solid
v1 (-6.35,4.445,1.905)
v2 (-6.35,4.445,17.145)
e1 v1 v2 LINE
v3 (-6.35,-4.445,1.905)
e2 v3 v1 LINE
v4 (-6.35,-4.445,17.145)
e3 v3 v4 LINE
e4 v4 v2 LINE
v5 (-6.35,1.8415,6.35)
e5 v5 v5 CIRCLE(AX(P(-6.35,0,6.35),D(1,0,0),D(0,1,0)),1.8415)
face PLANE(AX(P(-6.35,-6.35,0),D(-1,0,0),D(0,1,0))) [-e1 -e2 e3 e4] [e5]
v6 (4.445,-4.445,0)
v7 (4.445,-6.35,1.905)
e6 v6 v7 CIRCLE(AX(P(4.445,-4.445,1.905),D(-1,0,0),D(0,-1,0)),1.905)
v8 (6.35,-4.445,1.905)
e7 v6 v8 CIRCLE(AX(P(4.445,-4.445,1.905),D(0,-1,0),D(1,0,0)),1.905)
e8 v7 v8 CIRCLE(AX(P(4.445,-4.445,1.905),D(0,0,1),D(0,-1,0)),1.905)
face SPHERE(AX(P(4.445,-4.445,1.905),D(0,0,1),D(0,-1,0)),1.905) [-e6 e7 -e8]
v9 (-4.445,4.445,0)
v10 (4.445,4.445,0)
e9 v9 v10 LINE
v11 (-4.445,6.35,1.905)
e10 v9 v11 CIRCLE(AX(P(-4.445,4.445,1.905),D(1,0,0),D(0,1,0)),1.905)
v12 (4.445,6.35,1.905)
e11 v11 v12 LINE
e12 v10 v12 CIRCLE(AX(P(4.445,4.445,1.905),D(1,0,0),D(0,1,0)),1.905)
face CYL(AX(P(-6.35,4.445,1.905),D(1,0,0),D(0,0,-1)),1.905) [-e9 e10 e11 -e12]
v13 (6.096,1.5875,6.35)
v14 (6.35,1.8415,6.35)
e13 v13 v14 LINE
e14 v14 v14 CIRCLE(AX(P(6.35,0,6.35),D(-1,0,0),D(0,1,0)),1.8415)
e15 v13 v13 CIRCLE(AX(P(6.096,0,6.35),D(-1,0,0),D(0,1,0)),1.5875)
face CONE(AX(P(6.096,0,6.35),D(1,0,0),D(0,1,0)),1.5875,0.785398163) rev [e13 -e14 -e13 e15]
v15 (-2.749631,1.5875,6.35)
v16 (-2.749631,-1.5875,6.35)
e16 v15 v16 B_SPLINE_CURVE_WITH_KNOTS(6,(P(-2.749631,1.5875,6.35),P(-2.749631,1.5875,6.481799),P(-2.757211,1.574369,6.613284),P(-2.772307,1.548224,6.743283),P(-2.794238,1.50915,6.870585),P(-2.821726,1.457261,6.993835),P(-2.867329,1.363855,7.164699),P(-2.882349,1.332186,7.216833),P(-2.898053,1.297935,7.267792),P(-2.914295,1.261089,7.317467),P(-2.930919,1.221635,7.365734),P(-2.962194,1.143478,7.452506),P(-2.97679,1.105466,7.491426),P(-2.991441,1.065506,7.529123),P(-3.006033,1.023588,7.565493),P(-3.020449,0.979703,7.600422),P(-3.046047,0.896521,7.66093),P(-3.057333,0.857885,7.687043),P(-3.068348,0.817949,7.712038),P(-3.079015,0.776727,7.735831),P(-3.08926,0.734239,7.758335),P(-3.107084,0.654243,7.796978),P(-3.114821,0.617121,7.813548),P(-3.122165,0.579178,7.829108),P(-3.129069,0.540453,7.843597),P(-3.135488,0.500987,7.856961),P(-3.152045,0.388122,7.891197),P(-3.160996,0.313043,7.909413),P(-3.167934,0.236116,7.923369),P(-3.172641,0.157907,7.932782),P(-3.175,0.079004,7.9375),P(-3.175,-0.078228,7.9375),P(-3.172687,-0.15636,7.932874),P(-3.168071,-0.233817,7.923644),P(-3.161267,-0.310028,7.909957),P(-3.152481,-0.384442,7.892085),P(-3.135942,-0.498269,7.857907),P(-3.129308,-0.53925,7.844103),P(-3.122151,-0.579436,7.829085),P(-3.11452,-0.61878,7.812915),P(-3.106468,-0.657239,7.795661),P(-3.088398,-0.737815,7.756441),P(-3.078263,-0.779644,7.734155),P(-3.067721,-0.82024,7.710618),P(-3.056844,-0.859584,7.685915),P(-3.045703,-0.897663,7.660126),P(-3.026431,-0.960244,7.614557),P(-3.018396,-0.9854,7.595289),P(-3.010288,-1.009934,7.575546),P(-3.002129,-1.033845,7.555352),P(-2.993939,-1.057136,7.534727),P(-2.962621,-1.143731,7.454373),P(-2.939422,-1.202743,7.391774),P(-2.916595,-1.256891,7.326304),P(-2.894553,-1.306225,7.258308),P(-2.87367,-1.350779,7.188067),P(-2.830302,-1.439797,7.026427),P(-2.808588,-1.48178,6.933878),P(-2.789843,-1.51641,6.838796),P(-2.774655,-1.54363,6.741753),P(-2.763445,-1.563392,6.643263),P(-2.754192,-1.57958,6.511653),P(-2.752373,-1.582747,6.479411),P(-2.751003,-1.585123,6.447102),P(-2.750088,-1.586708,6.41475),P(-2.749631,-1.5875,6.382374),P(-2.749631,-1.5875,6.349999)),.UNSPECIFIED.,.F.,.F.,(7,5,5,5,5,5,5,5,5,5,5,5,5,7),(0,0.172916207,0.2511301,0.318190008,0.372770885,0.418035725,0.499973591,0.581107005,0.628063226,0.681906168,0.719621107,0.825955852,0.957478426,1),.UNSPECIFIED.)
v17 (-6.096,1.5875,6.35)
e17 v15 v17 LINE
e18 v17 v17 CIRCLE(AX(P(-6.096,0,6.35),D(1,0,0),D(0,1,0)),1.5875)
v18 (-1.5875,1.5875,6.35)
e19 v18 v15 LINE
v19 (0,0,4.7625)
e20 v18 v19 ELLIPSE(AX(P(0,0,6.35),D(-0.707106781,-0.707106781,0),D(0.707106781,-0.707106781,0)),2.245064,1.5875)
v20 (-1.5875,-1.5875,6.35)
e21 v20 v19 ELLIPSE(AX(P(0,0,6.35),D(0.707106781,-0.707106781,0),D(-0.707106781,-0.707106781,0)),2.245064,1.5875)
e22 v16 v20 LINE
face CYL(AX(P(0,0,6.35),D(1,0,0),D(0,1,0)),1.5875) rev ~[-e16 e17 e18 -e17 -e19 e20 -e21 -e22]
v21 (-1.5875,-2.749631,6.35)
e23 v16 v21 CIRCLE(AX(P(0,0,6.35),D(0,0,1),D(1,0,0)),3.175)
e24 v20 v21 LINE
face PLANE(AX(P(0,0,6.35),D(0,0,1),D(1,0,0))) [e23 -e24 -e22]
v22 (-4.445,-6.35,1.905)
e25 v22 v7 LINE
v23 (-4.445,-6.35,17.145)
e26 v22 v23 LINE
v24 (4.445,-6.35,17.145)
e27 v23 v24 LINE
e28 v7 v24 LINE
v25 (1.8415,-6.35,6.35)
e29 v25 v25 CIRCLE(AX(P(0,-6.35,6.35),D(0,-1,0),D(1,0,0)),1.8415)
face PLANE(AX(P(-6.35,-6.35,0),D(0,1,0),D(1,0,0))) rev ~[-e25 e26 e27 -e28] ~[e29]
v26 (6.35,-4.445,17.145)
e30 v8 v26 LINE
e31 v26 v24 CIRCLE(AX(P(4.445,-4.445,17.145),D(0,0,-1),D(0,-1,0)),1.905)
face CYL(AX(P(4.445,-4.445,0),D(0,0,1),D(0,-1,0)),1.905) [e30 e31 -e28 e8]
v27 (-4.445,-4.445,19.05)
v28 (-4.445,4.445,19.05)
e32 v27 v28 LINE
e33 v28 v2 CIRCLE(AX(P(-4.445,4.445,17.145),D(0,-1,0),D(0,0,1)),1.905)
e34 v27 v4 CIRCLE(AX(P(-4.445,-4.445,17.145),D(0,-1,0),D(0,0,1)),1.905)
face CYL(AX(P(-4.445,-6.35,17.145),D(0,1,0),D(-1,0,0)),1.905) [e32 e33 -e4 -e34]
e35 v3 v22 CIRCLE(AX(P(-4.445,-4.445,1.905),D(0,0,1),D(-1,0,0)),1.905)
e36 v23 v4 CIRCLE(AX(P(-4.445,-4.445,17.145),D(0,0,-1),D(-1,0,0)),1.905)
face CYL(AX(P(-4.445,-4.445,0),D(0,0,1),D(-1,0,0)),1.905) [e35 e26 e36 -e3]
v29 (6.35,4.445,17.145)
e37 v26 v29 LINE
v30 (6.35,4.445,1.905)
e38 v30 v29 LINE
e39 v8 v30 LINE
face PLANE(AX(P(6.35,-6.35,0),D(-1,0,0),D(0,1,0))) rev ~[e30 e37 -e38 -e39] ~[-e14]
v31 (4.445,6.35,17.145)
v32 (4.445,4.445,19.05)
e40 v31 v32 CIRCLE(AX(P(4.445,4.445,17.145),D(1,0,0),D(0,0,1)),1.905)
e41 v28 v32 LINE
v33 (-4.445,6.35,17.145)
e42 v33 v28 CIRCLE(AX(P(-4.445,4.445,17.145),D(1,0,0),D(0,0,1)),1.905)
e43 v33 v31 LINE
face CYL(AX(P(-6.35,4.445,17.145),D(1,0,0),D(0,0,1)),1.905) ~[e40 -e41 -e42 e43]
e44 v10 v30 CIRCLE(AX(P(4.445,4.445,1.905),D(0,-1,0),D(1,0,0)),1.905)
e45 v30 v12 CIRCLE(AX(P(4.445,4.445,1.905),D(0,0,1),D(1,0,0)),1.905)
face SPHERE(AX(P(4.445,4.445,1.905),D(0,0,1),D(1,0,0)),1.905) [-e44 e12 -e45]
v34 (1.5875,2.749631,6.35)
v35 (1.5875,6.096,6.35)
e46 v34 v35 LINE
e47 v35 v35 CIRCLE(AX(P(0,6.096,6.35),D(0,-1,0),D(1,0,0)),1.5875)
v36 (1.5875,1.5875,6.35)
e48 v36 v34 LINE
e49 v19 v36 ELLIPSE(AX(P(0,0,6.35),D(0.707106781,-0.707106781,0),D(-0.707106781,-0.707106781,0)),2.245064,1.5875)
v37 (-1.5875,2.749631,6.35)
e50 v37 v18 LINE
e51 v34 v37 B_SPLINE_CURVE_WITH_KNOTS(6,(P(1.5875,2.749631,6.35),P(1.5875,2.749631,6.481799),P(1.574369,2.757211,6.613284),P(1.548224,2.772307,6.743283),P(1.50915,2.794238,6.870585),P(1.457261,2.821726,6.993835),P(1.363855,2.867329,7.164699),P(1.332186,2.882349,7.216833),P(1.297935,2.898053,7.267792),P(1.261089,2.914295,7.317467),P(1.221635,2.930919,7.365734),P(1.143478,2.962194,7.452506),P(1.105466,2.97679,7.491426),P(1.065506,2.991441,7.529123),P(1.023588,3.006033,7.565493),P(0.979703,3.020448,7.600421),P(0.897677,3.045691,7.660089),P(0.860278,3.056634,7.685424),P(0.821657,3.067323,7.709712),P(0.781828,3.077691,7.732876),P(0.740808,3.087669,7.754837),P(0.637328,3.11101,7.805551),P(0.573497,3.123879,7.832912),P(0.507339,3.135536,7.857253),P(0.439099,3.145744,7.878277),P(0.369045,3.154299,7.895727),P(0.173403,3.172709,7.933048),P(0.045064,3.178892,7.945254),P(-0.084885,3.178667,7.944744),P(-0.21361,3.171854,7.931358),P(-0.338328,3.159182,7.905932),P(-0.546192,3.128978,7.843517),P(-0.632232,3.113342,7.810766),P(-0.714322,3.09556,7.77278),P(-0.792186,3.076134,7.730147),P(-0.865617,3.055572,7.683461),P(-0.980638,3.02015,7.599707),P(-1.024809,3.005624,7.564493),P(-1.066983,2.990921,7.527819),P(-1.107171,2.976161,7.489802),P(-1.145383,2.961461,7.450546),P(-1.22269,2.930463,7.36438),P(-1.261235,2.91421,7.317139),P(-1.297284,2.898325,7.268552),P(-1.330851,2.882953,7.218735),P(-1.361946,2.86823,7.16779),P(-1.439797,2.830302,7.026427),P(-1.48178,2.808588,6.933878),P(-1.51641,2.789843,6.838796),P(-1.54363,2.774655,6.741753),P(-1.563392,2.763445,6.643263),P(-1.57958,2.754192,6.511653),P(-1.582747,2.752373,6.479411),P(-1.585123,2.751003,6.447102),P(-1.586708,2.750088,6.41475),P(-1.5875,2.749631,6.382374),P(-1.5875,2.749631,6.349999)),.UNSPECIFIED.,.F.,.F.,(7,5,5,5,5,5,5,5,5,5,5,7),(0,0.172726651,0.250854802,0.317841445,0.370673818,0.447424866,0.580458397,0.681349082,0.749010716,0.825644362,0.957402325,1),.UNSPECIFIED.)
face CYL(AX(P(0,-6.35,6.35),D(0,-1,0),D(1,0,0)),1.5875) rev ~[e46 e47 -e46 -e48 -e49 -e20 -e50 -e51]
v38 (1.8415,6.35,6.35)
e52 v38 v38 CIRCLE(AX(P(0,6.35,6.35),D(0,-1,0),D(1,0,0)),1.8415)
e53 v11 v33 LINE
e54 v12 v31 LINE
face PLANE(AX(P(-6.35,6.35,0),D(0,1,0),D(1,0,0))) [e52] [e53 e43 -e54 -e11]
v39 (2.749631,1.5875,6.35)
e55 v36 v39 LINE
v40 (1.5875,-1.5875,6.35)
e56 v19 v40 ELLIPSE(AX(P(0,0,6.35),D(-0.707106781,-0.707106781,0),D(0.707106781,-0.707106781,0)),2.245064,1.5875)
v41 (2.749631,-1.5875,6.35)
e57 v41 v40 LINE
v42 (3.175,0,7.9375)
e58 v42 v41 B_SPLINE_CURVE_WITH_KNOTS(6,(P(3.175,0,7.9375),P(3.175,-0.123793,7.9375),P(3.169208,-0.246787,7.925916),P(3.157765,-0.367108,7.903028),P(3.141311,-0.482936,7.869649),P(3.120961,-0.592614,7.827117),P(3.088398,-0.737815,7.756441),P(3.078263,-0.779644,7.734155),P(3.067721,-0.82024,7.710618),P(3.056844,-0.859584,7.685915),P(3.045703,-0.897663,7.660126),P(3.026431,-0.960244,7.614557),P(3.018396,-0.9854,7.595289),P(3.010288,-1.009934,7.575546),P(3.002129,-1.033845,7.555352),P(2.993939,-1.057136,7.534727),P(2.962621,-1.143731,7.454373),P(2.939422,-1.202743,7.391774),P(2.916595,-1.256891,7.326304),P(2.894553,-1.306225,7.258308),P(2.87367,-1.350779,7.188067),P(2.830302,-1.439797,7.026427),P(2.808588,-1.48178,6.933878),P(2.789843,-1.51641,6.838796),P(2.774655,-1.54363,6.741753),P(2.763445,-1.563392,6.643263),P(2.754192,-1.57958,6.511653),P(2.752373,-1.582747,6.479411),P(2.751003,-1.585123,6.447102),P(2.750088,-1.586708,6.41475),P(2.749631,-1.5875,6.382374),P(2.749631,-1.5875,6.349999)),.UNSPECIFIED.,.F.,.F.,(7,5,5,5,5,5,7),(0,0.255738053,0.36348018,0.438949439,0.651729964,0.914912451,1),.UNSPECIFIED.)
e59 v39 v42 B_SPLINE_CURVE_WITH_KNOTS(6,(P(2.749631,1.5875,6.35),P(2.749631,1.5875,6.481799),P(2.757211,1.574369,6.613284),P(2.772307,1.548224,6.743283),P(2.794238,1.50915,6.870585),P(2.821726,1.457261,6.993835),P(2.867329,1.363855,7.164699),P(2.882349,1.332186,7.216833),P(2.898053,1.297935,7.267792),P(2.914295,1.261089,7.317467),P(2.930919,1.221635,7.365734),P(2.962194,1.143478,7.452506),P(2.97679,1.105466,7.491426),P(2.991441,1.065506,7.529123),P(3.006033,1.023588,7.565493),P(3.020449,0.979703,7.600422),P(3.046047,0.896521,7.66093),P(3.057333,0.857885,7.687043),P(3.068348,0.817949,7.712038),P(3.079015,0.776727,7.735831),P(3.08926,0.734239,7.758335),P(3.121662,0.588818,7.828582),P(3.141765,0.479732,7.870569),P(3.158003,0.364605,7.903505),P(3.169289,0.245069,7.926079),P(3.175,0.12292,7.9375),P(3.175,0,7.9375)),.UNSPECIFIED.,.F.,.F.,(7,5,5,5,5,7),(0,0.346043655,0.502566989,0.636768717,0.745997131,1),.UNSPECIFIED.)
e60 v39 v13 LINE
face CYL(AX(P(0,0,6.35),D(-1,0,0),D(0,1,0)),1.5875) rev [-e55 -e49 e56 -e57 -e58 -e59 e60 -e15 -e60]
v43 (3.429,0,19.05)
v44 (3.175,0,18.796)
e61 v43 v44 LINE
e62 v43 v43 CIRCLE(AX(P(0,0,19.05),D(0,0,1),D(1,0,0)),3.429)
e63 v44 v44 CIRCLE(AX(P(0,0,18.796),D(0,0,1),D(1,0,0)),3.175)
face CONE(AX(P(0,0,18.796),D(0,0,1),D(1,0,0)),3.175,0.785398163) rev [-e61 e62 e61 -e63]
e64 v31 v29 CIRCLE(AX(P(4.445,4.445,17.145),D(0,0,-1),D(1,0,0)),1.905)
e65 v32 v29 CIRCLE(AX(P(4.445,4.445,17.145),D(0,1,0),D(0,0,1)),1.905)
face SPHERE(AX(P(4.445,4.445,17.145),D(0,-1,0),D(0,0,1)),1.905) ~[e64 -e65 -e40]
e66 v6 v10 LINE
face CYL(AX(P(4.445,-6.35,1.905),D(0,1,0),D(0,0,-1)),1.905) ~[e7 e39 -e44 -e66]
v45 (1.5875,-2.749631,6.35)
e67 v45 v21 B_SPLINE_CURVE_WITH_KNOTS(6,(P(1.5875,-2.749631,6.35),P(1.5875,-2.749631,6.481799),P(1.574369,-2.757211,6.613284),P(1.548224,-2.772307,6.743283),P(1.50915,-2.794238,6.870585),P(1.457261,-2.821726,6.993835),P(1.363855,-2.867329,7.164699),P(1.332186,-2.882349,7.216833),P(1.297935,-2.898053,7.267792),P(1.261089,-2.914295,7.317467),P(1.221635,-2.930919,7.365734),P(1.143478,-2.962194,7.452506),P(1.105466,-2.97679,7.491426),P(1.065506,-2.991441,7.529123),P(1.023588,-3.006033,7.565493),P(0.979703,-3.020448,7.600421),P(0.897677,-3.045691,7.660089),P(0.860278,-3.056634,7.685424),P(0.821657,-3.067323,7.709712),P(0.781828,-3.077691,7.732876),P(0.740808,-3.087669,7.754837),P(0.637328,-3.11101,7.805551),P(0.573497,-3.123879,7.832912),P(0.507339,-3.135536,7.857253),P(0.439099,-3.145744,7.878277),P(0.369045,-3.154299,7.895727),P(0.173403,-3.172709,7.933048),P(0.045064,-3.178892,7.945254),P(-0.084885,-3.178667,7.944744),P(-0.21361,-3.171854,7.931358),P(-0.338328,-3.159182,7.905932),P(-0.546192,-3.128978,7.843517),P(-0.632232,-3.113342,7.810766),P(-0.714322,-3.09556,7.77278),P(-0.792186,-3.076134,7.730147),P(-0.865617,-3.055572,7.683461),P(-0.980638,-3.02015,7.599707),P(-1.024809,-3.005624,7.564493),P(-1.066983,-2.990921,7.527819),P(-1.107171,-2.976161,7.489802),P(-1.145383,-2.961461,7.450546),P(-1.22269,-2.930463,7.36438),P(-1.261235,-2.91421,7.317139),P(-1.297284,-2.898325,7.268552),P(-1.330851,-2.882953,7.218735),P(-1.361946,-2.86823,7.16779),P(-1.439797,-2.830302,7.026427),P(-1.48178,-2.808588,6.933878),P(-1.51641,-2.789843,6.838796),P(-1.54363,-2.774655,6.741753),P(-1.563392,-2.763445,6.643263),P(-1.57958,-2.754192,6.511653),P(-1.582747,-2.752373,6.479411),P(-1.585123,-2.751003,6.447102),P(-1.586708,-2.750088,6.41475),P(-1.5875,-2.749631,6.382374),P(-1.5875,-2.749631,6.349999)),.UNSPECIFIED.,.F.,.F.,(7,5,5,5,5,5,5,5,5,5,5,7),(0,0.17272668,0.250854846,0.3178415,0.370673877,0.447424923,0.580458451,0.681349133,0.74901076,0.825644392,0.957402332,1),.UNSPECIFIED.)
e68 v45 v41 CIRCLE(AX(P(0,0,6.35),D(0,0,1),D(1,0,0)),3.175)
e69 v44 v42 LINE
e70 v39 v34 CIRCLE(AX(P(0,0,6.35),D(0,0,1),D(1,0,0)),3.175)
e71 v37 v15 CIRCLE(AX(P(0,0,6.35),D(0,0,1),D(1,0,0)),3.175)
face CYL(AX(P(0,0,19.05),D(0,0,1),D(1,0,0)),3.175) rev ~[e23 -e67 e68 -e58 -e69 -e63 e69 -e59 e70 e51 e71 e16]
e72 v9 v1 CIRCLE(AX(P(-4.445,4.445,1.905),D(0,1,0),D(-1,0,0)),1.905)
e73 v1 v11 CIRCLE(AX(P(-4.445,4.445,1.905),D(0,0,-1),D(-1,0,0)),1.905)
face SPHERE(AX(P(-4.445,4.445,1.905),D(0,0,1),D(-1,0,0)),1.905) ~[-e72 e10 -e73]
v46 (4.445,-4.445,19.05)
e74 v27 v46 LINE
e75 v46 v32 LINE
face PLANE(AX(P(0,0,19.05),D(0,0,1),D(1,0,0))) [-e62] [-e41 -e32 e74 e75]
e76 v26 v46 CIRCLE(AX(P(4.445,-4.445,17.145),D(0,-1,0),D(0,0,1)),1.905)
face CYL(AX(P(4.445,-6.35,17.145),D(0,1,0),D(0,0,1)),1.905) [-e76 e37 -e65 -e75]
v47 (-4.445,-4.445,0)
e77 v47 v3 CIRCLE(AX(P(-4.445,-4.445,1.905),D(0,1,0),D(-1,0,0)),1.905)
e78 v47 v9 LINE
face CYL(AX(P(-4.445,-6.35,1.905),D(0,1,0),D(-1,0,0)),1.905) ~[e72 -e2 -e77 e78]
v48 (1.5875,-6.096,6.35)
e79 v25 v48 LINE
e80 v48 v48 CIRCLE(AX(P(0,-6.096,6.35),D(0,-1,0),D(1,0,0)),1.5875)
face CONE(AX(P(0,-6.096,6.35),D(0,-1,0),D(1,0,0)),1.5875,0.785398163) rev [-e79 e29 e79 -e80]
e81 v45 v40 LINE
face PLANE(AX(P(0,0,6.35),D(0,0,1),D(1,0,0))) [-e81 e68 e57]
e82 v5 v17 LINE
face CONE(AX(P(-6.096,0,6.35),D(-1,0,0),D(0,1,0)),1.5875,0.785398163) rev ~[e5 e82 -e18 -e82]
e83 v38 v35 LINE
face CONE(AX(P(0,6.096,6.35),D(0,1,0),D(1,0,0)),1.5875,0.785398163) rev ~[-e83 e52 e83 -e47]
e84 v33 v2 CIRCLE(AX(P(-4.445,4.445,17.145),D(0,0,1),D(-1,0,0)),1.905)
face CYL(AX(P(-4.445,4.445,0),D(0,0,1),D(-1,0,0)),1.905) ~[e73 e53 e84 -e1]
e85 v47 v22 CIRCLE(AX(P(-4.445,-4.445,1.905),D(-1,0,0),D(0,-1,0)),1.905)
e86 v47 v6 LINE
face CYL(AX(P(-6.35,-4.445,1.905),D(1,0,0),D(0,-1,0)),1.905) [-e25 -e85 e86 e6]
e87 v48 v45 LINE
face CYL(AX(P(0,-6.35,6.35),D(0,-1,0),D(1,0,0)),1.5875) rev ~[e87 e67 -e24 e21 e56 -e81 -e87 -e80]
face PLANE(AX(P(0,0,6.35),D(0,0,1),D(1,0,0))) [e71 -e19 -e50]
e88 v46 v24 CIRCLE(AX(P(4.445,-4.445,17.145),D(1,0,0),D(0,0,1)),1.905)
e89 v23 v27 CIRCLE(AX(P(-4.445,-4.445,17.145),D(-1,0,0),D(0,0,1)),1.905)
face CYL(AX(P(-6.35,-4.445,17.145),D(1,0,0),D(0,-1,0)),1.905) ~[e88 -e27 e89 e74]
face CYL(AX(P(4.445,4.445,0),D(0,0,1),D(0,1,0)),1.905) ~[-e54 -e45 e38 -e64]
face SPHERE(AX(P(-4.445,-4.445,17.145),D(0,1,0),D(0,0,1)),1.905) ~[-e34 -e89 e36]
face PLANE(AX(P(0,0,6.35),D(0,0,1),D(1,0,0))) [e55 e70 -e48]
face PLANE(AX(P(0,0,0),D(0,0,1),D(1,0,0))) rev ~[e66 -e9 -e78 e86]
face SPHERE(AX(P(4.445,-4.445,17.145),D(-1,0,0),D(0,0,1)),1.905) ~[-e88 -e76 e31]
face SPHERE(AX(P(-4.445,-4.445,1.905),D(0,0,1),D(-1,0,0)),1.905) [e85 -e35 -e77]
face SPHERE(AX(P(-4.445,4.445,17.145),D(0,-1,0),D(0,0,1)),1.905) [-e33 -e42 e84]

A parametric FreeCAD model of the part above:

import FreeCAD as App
import Part
import Sketcher
from FreeCAD import Vector
Q = App.Units.Quantity


def edges_at(feature, points):
    """Names of the edges that pass closest to the given points."""
    edges = feature.Shape.Edges
    near = lambda p: min(range(len(edges)), key=lambda i: edges[i].distToShape(Part.Vertex(*p))[0])
    return sorted({f"Edge{near(p) + 1}" for p in points})


def add_polygon(sketch, points):
    """Adds a closed chain of lines whose ends are joined by coincident constraints."""
    first, n = sketch.GeometryCount, len(points)
    for a, b in zip(points, points[1:] + points[:1]):
        sketch.addGeometry(Part.LineSegment(App.Vector(*a, 0), App.Vector(*b, 0)), False)
    for i in range(n):
        sketch.addConstraint(Sketcher.Constraint("Coincident", first + i, 2, first + (i + 1) % n, 1))

doc = App.newDocument("Part")
body = doc.addObject("PartDesign::Body", "Body")

# Sketch on XY plane
sketch1 = body.newObject("Sketcher::SketchObject", "Sketch")
sketch1.AttachmentSupport = (doc.getObject("XY_Plane"), [""])
sketch1.MapMode = "FlatFace"
add_polygon(sketch1, [(-6, 6), (-6, -6), (6, -6), (6, 6)])  # lines 0-3
sketch1.addConstraint(Sketcher.Constraint("Vertical", 0))
sketch1.addConstraint(Sketcher.Constraint("Horizontal", 1))
sketch1.addConstraint(Sketcher.Constraint("Vertical", 2))
sketch1.addConstraint(Sketcher.Constraint("Horizontal", 3))
sketch1.addConstraint(Sketcher.Constraint("Symmetric", 0, 2, 2, 2, -1, 1))
sketch1.addConstraint(Sketcher.Constraint("Equal", 3, 0))
sketch1.addConstraint(Sketcher.Constraint("DistanceX", 1, 1, 1, 2, Q("0.5 in")))
pad1 = body.newObject("PartDesign::Pad", "Pad")
pad1.Profile = sketch1
pad1.Length = Q("0.75 in")

# Sketch on XZ plane
sketch2 = body.newObject("Sketcher::SketchObject", "Sketch001")
sketch2.AttachmentSupport = (doc.getObject("XZ_Plane"), [""])
sketch2.MapMode = "FlatFace"
sketch2.AttachmentOffset = App.Placement(Vector(0, 0, 0.25 * 25.4), App.Rotation())
sketch2.addGeometry(Part.Circle(Vector(0, 6.3, 0), Vector(0, 0, 1), 1.6), False)
sketch2.addConstraint(Sketcher.Constraint("PointOnObject", 0, 3, -2))
sketch2.addConstraint(Sketcher.Constraint("Diameter", 0, Q("0.125 in")))
sketch2.addConstraint(Sketcher.Constraint("DistanceY", -1, 1, 0, 3, Q("0.25 in")))
pocket1 = body.newObject("PartDesign::Pocket", "Pocket")
pocket1.Profile = sketch2
pocket1.Length = Q("1 in")

# Sketch on YZ plane
sketch3 = body.newObject("Sketcher::SketchObject", "Sketch002")
sketch3.AttachmentSupport = (doc.getObject("YZ_Plane"), [""])
sketch3.MapMode = "FlatFace"
sketch3.addGeometry(Part.Circle(Vector(0, 6.3, 0), Vector(0, 0, 1), 1.6), False)
sketch3.addConstraint(Sketcher.Constraint("PointOnObject", 0, 3, -2))
sketch3.addConstraint(Sketcher.Constraint("Diameter", 0, Q("0.125 in")))
sketch3.addConstraint(Sketcher.Constraint("DistanceY", -1, 1, 0, 3, Q("0.25 in")))
pocket2 = body.newObject("PartDesign::Pocket", "Pocket001")
pocket2.Profile = sketch3
pocket2.Type = "ThroughAll"
pocket2.Midplane = True

# Sketch on XY plane
sketch4 = body.newObject("Sketcher::SketchObject", "Sketch003")
sketch4.AttachmentSupport = (doc.getObject("XY_Plane"), [""])
sketch4.MapMode = "FlatFace"
sketch4.AttachmentOffset = App.Placement(Vector(0, 0, 0.75 * 25.4), App.Rotation())
sketch4.addGeometry(Part.Circle(Vector(0, 0, 0), Vector(0, 0, 1), 3.2), False)
sketch4.addConstraint(Sketcher.Constraint("Coincident", 0, 3, -1, 1))
sketch4.addConstraint(Sketcher.Constraint("Diameter", 0, Q("0.25 in")))
pocket3 = body.newObject("PartDesign::Pocket", "Pocket002")
pocket3.Profile = sketch4
pocket3.Length = Q("0.5 in")
doc.recompute()

fillet = body.newObject("PartDesign::Fillet", "Fillet")
fillet.Base = (pocket3, edges_at(pocket3, [
    (-6.35, 0, 19.05),
    (0, -6.35, 19.05),
    (6.35, 0, 19.05),
    (0, 6.35, 19.05),
    (6.35, -6.35, 9.525),
    (6.35, 6.35, 9.525),
    (-6.35, -6.35, 9.525),
    (-6.35, 6.35, 9.525),
    (-6.35, 0, 0),
    (0, -6.35, 0),
    (6.35, 0, 0),
    (0, 6.35, 0),
]))
fillet.Radius = Q("0.075 in")
doc.recompute()

chamfer = body.newObject("PartDesign::Chamfer", "Chamfer")
chamfer.Base = (fillet, edges_at(fillet, [
    (6.35, -1.587, 6.35),
    (-3.175, 0, 19.05),
    (-1.587, 6.35, 6.35),
    (-6.35, -1.587, 6.35),
    (-1.587, -6.35, 6.35),
]))
chamfer.Size = Q("0.01 in")

doc.recompute()
